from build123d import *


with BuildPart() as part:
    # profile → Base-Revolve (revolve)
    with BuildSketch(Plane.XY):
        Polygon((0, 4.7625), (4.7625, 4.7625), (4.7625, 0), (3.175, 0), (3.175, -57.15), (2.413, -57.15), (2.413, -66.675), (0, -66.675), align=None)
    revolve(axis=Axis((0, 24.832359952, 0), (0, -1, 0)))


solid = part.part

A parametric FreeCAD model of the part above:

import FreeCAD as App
import Part
import Sketcher
from FreeCAD import Vector
Q = App.Units.Quantity


def add_polygon(sketch, points):
    """Adds a closed chain of lines whose ends are joined by coincident constraints."""
    first, n = sketch.GeometryCount, len(points)
    for a, b in zip(points, points[1:] + points[:1]):
        sketch.addGeometry(Part.LineSegment(App.Vector(*a, 0), App.Vector(*b, 0)), False)
    for i in range(n):
        sketch.addConstraint(Sketcher.Constraint("Coincident", first + i, 2, first + (i + 1) % n, 1))

doc = App.newDocument("Part")
body = doc.addObject("PartDesign::Body", "Body")

# Sketch on XY plane
sketch1 = doc.addObject("Sketcher::SketchObject", "Sketch")
body.addObject(sketch1)
sketch1.AttachmentSupport = (doc.XY_Plane, [""])
sketch1.MapMode = "FlatFace"
add_polygon(sketch1, [(4.8, 4.8), (0, 4.8), (0, -66.7), (2.4, -66.7), (2.4, -57.1), (3.2, -57.1), (3.2, 0), (4.8, 0)])  # lines 0-7
sketch1.addConstraint([
    Sketcher.Constraint("Horizontal", 0),
    Sketcher.Constraint("Vertical", 1),
    Sketcher.Constraint("Horizontal", 2),
    Sketcher.Constraint("Vertical", 3),
    Sketcher.Constraint("Horizontal", 4),
    Sketcher.Constraint("Vertical", 5),
    Sketcher.Constraint("Horizontal", 6),
    Sketcher.Constraint("Vertical", 7),
    Sketcher.Constraint("PointOnObject", 0, 2, -2),
    Sketcher.Constraint("PointOnObject", 5, 2, -1),
    Sketcher.Constraint("Equal", 0, 7),
    Sketcher.Constraint("DistanceX", 4, 1, 4, 2, Q("0.03 in")),
    Sketcher.Constraint("DistanceY", 5, 1, 5, 2, Q("2.25 in")),
    Sketcher.Constraint("DistanceX", 0, 2, 0, 1, Q("0.1875 in")),
    Sketcher.Constraint("DistanceX", 2, 1, 2, 2, Q("0.095 in")),
    Sketcher.Constraint("DistanceY", 1, 2, 1, 1, Q("2.8125 in")),
])
revolution = doc.addObject("PartDesign::Revolution", "Revolution")
body.addObject(revolution)
revolution.Profile = sketch1
revolution.ReferenceAxis = (sketch1, ["V_Axis"])
revolution.Angle = 360

doc.recompute()
